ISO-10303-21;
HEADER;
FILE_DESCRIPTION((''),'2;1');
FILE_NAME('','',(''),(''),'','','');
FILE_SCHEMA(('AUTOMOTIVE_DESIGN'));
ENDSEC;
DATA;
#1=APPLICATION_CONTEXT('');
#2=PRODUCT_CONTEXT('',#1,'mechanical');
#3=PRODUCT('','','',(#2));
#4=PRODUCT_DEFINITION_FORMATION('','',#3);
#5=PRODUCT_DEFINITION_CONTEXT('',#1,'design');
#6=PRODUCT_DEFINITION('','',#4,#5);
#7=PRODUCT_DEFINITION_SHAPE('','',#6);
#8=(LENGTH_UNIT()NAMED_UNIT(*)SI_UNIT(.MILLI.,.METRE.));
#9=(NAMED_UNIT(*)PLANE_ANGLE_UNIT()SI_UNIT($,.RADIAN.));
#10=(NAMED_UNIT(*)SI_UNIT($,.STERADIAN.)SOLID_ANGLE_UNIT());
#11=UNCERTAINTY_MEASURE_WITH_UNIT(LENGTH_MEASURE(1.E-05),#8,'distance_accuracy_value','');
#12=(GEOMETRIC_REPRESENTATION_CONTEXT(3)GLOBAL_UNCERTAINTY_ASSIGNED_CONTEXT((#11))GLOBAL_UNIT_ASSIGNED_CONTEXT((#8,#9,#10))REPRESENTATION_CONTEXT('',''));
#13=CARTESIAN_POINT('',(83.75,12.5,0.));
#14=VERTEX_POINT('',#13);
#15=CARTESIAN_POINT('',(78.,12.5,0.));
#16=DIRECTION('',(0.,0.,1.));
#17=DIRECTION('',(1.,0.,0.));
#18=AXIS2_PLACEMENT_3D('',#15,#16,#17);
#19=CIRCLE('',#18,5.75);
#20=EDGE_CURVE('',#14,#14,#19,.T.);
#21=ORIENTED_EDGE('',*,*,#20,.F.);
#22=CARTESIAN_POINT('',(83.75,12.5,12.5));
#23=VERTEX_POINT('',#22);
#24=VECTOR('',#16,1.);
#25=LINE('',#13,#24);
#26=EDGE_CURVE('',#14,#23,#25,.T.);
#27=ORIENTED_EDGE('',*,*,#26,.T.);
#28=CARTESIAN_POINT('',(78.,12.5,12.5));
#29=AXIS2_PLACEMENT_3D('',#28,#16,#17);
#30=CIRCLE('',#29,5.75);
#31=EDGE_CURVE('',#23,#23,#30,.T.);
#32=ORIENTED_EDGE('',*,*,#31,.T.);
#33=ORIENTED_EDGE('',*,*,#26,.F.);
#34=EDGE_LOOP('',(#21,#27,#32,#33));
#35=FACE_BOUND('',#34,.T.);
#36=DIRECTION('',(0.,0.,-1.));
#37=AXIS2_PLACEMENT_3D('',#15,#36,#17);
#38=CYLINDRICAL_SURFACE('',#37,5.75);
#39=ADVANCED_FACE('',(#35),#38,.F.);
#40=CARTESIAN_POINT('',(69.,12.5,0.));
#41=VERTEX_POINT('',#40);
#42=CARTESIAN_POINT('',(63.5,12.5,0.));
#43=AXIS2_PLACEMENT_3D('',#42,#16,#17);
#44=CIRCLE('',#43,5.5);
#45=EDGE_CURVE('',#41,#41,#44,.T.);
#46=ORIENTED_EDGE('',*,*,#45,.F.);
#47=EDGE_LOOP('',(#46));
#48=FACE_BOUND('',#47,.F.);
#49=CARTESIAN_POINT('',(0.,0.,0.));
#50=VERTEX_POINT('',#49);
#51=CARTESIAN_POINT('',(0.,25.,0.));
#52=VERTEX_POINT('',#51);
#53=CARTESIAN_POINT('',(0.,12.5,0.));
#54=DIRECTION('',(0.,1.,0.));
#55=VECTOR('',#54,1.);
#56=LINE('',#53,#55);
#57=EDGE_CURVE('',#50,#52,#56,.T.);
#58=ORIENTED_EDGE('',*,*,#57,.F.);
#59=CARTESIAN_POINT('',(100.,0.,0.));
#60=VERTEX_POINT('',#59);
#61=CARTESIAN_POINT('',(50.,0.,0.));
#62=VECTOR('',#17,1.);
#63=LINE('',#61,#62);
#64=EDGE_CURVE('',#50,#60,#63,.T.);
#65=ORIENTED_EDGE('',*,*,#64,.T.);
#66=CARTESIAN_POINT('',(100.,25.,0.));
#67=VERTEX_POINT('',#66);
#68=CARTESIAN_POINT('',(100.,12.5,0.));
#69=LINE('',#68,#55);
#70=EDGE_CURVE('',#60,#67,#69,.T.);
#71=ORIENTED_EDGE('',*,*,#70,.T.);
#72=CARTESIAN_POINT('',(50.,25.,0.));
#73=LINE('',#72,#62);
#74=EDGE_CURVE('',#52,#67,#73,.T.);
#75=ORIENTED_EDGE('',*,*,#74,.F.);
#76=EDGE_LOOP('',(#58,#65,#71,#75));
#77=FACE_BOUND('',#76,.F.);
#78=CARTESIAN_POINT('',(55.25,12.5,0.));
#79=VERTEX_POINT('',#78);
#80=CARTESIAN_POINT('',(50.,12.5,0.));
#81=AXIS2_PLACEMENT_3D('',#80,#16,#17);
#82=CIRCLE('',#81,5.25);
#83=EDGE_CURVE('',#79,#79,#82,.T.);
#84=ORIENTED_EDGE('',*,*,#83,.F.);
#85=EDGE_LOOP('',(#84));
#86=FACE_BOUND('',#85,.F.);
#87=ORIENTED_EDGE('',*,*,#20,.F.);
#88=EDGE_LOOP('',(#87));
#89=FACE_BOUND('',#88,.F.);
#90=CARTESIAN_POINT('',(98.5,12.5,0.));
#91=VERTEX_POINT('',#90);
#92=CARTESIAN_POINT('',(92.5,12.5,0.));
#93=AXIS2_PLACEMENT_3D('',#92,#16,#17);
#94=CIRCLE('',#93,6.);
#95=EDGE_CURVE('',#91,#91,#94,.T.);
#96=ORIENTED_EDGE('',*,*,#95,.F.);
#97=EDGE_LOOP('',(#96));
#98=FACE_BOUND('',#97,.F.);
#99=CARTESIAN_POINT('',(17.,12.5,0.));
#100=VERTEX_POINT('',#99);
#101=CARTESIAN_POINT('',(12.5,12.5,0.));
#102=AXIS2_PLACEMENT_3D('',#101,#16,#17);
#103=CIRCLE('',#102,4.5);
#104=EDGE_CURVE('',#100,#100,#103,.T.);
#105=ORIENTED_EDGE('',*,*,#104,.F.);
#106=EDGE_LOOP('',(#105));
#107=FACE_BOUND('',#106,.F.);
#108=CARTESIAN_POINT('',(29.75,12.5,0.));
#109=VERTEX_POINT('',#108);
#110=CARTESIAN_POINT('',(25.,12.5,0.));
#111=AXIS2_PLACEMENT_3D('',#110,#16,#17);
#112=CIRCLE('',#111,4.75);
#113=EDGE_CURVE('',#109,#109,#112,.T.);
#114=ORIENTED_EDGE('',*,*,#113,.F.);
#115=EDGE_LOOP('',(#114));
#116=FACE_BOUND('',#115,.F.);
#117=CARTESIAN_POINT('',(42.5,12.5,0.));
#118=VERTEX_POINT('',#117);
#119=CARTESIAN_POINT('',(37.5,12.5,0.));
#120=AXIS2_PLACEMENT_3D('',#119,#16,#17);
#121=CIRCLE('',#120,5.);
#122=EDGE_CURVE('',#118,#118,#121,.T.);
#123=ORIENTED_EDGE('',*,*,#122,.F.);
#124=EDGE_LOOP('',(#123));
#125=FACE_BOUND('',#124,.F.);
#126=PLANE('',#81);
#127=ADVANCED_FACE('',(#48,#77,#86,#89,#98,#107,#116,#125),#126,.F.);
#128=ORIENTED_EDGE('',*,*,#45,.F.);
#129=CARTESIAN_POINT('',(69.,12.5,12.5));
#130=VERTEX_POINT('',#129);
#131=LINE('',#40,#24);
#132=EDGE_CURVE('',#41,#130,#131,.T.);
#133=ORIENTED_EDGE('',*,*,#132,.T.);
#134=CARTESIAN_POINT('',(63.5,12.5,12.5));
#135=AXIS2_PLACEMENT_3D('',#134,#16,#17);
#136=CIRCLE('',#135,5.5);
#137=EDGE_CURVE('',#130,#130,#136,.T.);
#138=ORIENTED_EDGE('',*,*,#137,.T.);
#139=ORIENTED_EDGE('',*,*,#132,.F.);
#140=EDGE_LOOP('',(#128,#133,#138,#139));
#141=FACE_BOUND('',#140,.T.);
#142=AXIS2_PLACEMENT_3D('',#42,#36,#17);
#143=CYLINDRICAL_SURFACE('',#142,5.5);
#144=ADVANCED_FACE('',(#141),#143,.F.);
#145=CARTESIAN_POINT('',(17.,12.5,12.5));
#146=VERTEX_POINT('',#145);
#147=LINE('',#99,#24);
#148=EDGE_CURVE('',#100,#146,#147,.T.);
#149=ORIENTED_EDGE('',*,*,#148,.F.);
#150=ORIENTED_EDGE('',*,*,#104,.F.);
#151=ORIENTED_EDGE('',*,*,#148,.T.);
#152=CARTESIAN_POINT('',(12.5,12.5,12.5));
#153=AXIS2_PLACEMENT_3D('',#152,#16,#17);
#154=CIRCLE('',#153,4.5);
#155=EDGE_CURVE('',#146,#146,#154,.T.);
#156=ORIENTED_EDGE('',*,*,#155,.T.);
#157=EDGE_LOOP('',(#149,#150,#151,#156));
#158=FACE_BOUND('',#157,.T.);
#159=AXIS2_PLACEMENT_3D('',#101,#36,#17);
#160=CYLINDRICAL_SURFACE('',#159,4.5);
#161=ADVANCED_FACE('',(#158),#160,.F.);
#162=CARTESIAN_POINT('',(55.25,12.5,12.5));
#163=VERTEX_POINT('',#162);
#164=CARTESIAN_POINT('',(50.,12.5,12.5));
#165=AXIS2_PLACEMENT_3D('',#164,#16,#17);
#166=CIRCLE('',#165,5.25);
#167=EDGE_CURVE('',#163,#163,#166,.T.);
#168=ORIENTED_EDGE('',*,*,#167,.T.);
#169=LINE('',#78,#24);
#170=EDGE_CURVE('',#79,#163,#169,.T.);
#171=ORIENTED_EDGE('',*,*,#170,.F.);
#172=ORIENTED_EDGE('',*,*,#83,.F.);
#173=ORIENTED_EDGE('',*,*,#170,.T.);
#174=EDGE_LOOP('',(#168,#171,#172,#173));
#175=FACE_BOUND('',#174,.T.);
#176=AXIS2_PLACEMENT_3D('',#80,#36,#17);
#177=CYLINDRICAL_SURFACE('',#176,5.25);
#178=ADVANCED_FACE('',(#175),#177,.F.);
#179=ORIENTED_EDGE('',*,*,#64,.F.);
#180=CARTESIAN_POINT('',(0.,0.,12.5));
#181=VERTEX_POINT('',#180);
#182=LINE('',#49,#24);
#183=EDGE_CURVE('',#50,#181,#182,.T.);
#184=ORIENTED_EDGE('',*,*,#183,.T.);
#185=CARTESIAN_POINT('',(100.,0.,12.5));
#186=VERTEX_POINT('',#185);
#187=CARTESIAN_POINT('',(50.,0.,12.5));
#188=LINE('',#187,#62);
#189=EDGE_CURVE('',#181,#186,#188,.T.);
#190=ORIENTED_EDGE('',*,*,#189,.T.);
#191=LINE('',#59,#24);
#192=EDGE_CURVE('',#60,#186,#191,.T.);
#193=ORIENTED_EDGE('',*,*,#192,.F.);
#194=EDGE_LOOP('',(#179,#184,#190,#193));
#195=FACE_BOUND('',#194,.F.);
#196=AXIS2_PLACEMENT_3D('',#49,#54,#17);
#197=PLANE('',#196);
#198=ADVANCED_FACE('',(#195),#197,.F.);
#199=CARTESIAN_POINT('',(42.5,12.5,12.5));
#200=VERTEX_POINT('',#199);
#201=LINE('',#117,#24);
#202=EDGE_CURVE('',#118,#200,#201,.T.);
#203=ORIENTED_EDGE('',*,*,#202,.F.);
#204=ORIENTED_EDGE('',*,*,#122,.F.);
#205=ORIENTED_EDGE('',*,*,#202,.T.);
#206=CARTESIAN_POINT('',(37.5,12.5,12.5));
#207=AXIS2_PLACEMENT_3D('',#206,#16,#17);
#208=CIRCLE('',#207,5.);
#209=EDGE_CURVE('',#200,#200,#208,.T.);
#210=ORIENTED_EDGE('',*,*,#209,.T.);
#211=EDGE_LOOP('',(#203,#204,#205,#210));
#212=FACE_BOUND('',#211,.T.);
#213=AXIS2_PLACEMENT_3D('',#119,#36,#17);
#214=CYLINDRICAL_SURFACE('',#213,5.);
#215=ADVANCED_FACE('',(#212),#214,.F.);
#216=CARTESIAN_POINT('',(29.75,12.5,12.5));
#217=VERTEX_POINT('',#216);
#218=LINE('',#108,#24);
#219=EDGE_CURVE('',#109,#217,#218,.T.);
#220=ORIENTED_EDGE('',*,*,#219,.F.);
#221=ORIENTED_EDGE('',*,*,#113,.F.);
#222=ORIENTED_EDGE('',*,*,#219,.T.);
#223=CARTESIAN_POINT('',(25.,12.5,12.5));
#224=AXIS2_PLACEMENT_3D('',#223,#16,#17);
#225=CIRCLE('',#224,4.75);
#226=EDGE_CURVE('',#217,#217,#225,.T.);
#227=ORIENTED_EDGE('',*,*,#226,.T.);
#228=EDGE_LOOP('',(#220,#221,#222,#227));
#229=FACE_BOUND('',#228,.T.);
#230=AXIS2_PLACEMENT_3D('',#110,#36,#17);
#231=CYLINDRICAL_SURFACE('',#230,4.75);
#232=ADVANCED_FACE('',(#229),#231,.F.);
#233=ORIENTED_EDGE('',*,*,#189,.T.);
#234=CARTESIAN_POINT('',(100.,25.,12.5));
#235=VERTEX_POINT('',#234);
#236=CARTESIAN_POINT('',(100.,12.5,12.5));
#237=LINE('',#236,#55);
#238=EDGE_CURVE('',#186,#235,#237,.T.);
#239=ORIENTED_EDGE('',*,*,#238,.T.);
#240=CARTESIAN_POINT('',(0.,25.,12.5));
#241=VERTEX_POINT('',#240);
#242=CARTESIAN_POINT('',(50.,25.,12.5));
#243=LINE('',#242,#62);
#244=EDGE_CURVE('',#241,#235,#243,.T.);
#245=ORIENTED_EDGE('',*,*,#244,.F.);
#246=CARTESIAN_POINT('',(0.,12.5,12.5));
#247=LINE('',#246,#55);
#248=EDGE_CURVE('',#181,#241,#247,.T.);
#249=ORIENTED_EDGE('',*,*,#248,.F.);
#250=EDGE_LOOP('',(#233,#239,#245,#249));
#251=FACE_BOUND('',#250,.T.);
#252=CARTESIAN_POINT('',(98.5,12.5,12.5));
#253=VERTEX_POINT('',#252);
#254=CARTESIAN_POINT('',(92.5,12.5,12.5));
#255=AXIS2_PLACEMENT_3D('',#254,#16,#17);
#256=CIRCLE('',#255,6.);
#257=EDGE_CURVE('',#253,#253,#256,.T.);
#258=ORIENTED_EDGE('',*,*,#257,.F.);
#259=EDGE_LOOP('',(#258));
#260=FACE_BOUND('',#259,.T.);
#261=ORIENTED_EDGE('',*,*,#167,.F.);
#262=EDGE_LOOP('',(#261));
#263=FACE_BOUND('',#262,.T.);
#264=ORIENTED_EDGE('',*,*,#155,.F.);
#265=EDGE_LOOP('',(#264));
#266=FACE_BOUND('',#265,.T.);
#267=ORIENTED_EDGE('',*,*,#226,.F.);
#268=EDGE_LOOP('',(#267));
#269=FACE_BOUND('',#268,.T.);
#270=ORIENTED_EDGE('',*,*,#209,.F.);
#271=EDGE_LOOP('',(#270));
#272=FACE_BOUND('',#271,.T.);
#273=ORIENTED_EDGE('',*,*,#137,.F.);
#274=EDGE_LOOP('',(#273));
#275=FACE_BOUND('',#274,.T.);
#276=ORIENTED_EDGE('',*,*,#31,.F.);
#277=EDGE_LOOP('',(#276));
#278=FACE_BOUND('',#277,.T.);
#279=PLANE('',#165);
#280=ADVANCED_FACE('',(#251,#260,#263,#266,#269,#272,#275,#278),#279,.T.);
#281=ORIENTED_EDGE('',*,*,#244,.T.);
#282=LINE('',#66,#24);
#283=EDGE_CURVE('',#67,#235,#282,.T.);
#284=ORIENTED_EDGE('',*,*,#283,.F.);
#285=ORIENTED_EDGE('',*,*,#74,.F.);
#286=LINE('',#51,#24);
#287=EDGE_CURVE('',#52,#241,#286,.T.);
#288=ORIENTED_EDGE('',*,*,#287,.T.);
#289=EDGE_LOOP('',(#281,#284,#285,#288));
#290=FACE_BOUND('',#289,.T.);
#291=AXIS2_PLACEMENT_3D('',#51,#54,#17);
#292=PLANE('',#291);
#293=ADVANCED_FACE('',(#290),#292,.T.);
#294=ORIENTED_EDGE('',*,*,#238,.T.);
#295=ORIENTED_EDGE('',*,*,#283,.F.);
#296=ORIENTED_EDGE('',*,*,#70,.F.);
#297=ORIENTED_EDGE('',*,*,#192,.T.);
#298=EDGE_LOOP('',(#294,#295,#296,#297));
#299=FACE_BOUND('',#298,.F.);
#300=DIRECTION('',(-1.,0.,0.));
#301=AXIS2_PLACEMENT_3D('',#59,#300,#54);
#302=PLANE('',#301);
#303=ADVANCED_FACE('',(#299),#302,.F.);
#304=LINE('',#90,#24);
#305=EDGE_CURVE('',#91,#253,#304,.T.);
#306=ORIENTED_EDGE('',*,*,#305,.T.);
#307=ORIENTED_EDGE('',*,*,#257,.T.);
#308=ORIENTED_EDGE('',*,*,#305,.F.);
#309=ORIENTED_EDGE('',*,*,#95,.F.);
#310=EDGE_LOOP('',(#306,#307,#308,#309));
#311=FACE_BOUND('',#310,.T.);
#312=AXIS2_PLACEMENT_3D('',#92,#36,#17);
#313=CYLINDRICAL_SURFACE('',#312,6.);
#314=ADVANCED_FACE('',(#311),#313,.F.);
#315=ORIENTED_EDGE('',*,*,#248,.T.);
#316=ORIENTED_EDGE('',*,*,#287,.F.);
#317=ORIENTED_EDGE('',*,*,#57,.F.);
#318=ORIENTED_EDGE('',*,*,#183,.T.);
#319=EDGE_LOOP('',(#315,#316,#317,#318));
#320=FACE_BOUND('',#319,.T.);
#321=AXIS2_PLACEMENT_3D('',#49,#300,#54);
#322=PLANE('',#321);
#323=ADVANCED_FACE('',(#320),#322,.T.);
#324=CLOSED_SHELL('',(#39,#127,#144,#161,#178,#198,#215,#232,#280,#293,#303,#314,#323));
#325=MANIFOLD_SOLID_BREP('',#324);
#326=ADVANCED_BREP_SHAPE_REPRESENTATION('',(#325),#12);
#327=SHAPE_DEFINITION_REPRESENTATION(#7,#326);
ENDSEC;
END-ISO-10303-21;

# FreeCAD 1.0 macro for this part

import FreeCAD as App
import Part
import Sketcher
Q = App.Units.Quantity


def add_polygon(sketch, points):
    """Adds a closed chain of lines whose ends are joined by coincident constraints."""
    first, n = sketch.GeometryCount, len(points)
    for a, b in zip(points, points[1:] + points[:1]):
        sketch.addGeometry(Part.LineSegment(App.Vector(*a, 0), App.Vector(*b, 0)), False)
    for i in range(n):
        sketch.addConstraint(Sketcher.Constraint("Coincident", first + i, 2, first + (i + 1) % n, 1))

doc = App.newDocument("Part")
body = doc.addObject("PartDesign::Body", "Body")

sketch1 = doc.addObject("Sketcher::SketchObject", "Sketch")
body.addObject(sketch1)
sketch1.AttachmentSupport = (doc.XY_Plane, [""])
sketch1.MapMode = "FlatFace"
add_polygon(sketch1, [(0, 25), (0, 0), (100, 0), (100, 25)])
sketch1.addGeometry(Part.Circle(App.Vector(12.5, 12.5, 0), App.Vector(0, 0, 1), 4.5), False)
sketch1.addGeometry(Part.Circle(App.Vector(25, 12.5, 0), App.Vector(0, 0, 1), 4.8), False)
sketch1.addGeometry(Part.Circle(App.Vector(37.5, 12.5, 0), App.Vector(0, 0, 1), 5), False)
sketch1.addGeometry(Part.Circle(App.Vector(50, 12.5, 0), App.Vector(0, 0, 1), 5.2), False)
sketch1.addGeometry(Part.Circle(App.Vector(63.5, 12.5, 0), App.Vector(0, 0, 1), 5.5), False)
sketch1.addGeometry(Part.Circle(App.Vector(78, 12.5, 0), App.Vector(0, 0, 1), 5.8), False)
sketch1.addGeometry(Part.Circle(App.Vector(92.5, 12.5, 0), App.Vector(0, 0, 1), 6), False)
sketch1.addConstraint([
    Sketcher.Constraint("Vertical", 0),
    Sketcher.Constraint("Horizontal", 1),
    Sketcher.Constraint("Vertical", 2),
    Sketcher.Constraint("Horizontal", 3),
    Sketcher.Constraint("Coincident", 0, 2, -1, 1),
    Sketcher.Constraint("Horizontal", 4, 3, 5, 3),
    Sketcher.Constraint("Horizontal", 5, 3, 6, 3),
    Sketcher.Constraint("Horizontal", 6, 3, 7, 3),
    Sketcher.Constraint("Horizontal", 7, 3, 8, 3),
    Sketcher.Constraint("Horizontal", 8, 3, 9, 3),
    Sketcher.Constraint("Horizontal", 9, 3, 10, 3),
    Sketcher.Constraint("Diameter", 4, Q("9 mm")),
    Sketcher.Constraint("Diameter", 6, Q("10 mm")),
    Sketcher.Constraint("Diameter", 8, Q("11 mm")),
    Sketcher.Constraint("Diameter", 10, Q("12 mm")),
    Sketcher.Constraint("Diameter", 5, Q("9.5 mm")),
    Sketcher.Constraint("Diameter", 7, Q("10.5 mm")),
    Sketcher.Constraint("Diameter", 9, Q("11.5 mm")),
    Sketcher.Constraint("DistanceX", 1, 1, 1, 2, Q("100 mm")),
    Sketcher.Constraint("DistanceY", 0, 2, 0, 1, Q("25 mm")),
    Sketcher.Constraint("DistanceX", -1, 1, 5, 3, Q("25 mm")),
    Sketcher.Constraint("DistanceX", -1, 1, 7, 3, Q("50 mm")),
    Sketcher.Constraint("DistanceX", -1, 1, 9, 3, Q("78 mm")),
    Sketcher.Constraint("DistanceX", 4, 3, 6, 3, Q("25 mm")),
    Sketcher.Constraint("DistanceX", 6, 3, 8, 3, Q("26 mm")),
    Sketcher.Constraint("DistanceX", 8, 3, 10, 3, Q("29 mm")),
    Sketcher.Constraint("DistanceX", -1, 1, 4, 3, Q("12.5 mm")),
    Sketcher.Constraint("DistanceY", -1, 1, 4, 3, Q("12.5 mm")),
])
pad1 = doc.addObject("PartDesign::Pad", "Pad")
body.addObject(pad1)
pad1.Profile = sketch1
pad1.Length = 12.5

doc.recompute()
